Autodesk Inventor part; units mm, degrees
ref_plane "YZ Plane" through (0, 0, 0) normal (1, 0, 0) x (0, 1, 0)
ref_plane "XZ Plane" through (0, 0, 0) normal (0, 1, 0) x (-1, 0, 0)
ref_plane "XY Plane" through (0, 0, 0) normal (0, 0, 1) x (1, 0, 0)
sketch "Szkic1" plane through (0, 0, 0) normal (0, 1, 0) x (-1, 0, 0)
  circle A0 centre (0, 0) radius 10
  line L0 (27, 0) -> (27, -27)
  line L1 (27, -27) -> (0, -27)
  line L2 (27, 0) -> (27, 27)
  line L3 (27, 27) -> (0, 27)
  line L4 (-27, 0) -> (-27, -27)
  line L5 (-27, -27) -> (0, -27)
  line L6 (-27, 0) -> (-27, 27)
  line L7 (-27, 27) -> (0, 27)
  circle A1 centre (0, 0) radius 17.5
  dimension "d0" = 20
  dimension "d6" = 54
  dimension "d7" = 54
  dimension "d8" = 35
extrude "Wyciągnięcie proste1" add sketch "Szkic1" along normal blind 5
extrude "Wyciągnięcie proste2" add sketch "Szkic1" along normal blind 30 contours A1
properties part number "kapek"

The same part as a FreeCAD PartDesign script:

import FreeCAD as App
import Part
import Sketcher
from FreeCAD import Vector
Q = App.Units.Quantity


def add_polygon(sketch, points):
    """Adds a closed chain of lines whose ends are joined by coincident constraints."""
    first, n = sketch.GeometryCount, len(points)
    for a, b in zip(points, points[1:] + points[:1]):
        sketch.addGeometry(Part.LineSegment(App.Vector(*a, 0), App.Vector(*b, 0)), False)
    for i in range(n):
        sketch.addConstraint(Sketcher.Constraint("Coincident", first + i, 2, first + (i + 1) % n, 1))

doc = App.newDocument("Part")
body = doc.addObject("PartDesign::Body", "Body")
body.AllowCompound = True

# Sketch on XZ plane
sketch1 = body.newObject("Sketcher::SketchObject", "Sketch")
sketch1.AttachmentSupport = (doc.getObject("XZ_Plane"), [""])
sketch1.MapMode = "FlatFace"
sketch1.addGeometry(Part.Circle(Vector(0, 0, 0), Vector(0, 0, 1), 10), False)  # 0
add_polygon(sketch1, [(-27, -27), (-27, 27), (27, 27), (27, -27)])  # lines 1-4
sketch1.addGeometry(Part.Circle(Vector(0, 0, 0), Vector(0, 0, 1), 17.5), False)  # 5
sketch1.addConstraint([
    Sketcher.Constraint("Vertical", 1),
    Sketcher.Constraint("Horizontal", 2),
    Sketcher.Constraint("Vertical", 3),
    Sketcher.Constraint("Horizontal", 4),
    Sketcher.Constraint("Coincident", 0, 3, -1, 1),
    Sketcher.Constraint("Coincident", 5, 3, -1, 1),
    Sketcher.Constraint("Symmetric", 1, 2, 3, 2, -1, 1),
    Sketcher.Constraint("Equal", 4, 1),
    Sketcher.Constraint("Diameter", 0, Q("20 mm")),
    Sketcher.Constraint("Diameter", 5, Q("35 mm")),
    Sketcher.Constraint("DistanceX", 2, 1, 2, 2, Q("54 mm")),
])
pad1 = body.newObject("PartDesign::Pad", "Pad")
pad1.Profile = sketch1
pad1.Length = 5
pad1.Reversed = True

# Sketch on XZ plane
sketch2 = body.newObject("Sketcher::SketchObject", "Sketch001")
sketch2.AttachmentSupport = (doc.getObject("XZ_Plane"), [""])
sketch2.MapMode = "FlatFace"
sketch2.addGeometry([
    Part.Circle(Vector(0, 0, 0), Vector(0, 0, 1), 17.5),
    Part.Circle(Vector(0, 0, 0), Vector(0, 0, 1), 10),
], False)
sketch2.addConstraint([
    Sketcher.Constraint("Coincident", 0, 3, -1, 1),
    Sketcher.Constraint("Coincident", 1, 3, -1, 1),
    Sketcher.Constraint("Diameter", 0, Q("35 mm")),
    Sketcher.Constraint("Diameter", 1, Q("20 mm")),
])
pad2 = body.newObject("PartDesign::Pad", "Pad001")
pad2.Profile = sketch2
pad2.Length = 30
pad2.Reversed = True

doc.recompute()
